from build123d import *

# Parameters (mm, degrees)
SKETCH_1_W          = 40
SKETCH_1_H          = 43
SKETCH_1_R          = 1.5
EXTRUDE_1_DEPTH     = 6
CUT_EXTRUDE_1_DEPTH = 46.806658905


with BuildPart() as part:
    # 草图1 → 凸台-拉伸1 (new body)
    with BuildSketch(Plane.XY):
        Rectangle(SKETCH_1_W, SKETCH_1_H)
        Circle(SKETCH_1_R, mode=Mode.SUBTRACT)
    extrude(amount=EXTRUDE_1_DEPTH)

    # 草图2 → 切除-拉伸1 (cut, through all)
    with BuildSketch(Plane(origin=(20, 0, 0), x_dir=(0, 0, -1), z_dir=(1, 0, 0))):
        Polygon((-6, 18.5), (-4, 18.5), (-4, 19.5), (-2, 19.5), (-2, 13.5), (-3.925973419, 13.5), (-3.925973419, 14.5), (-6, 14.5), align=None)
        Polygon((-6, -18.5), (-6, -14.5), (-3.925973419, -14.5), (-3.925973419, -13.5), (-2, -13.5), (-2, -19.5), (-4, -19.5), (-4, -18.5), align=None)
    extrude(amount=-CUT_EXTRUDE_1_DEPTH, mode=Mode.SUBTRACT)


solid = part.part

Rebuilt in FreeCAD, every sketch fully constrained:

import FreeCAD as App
import Part
import Sketcher

V = App.Vector
Q = App.Units.Quantity


def add_polygon(sketch, points):
    """Adds a closed chain of lines whose ends are joined by coincident constraints."""
    first, n = sketch.GeometryCount, len(points)
    for a, b in zip(points, points[1:] + points[:1]):
        sketch.addGeometry(Part.LineSegment(App.Vector(*a, 0), App.Vector(*b, 0)), False)
    for i in range(n):
        sketch.addConstraint(Sketcher.Constraint("Coincident", first + i, 2, first + (i + 1) % n, 1))

doc = App.newDocument("Part")
body = doc.addObject("PartDesign::Body", "Body")

# Sketch on XY plane
sketch1 = doc.addObject("Sketcher::SketchObject", "Sketch")
body.addObject(sketch1)
sketch1.AttachmentSupport = (doc.XY_Plane, [""])
sketch1.MapMode = "FlatFace"
add_polygon(sketch1, [(-20, 21.5), (-20, -21.5), (20, -21.5), (20, 21.5)])  # lines 0-3
sketch1.addGeometry(Part.Circle(V(0, 0, 0), V(0, 0, 1), 1.5), False)  # 4
sketch1.addConstraint(Sketcher.Constraint("Vertical", 0))
sketch1.addConstraint(Sketcher.Constraint("Horizontal", 1))
sketch1.addConstraint(Sketcher.Constraint("Vertical", 2))
sketch1.addConstraint(Sketcher.Constraint("Horizontal", 3))
sketch1.addConstraint(Sketcher.Constraint("Coincident", 4, 3, -1, 1))
sketch1.addConstraint(Sketcher.Constraint("Symmetric", 0, 2, 2, 2, -1, 1))
sketch1.addConstraint(Sketcher.Constraint("Diameter", 4, Q("3 mm")))
sketch1.addConstraint(Sketcher.Constraint("DistanceX", 1, 1, 1, 2, Q("40 mm")))
sketch1.addConstraint(Sketcher.Constraint("DistanceY", 0, 2, 0, 1, Q("43 mm")))
pad1 = doc.addObject("PartDesign::Pad", "Pad")
body.addObject(pad1)
pad1.Profile = sketch1
pad1.Length = 6

# Sketch on YZ plane
sketch2 = doc.addObject("Sketcher::SketchObject", "Sketch001")
body.addObject(sketch2)
sketch2.AttachmentSupport = (doc.YZ_Plane, [""])
sketch2.MapMode = "FlatFace"
sketch2.AttachmentOffset = App.Placement(V(0, 0, 20), App.Rotation())
add_polygon(sketch2, [(18.5, 4), (18.5, 6), (14.5, 6), (14.5, 3.9), (13.5, 3.9), (13.5, 2), (19.5, 2), (19.5, 4)])  # lines 0-7
add_polygon(sketch2, [(-14.5, 6), (-18.5, 6), (-18.5, 4), (-19.5, 4), (-19.5, 2), (-13.5, 2), (-13.5, 3.9), (-14.5, 3.9)])  # lines 8-15
sketch2.addConstraint(Sketcher.Constraint("Vertical", 0))
sketch2.addConstraint(Sketcher.Constraint("Horizontal", 1))
sketch2.addConstraint(Sketcher.Constraint("Vertical", 2))
sketch2.addConstraint(Sketcher.Constraint("Horizontal", 3))
sketch2.addConstraint(Sketcher.Constraint("Vertical", 4))
sketch2.addConstraint(Sketcher.Constraint("Horizontal", 5))
sketch2.addConstraint(Sketcher.Constraint("Vertical", 6))
sketch2.addConstraint(Sketcher.Constraint("Horizontal", 7))
sketch2.addConstraint(Sketcher.Constraint("Horizontal", 8))
sketch2.addConstraint(Sketcher.Constraint("Vertical", 9))
sketch2.addConstraint(Sketcher.Constraint("Horizontal", 10))
sketch2.addConstraint(Sketcher.Constraint("Vertical", 11))
sketch2.addConstraint(Sketcher.Constraint("Horizontal", 12))
sketch2.addConstraint(Sketcher.Constraint("Vertical", 13))
sketch2.addConstraint(Sketcher.Constraint("Horizontal", 14))
sketch2.addConstraint(Sketcher.Constraint("Vertical", 15))
sketch2.addConstraint(Sketcher.Constraint("Symmetric", 0, 2, 8, 2, -2))
sketch2.addConstraint(Sketcher.Constraint("Symmetric", 6, 2, 10, 2, -2))
sketch2.addConstraint(Sketcher.Constraint("Symmetric", 4, 2, 12, 2, -2))
sketch2.addConstraint(Sketcher.Constraint("Symmetric", 2, 2, 14, 2, -2))
sketch2.addConstraint(Sketcher.Constraint("Equal", 3, 7))
sketch2.addConstraint(Sketcher.Constraint("Equal", 0, 6))
sketch2.addConstraint(Sketcher.Constraint("DistanceX", 1, 2, 1, 1, Q("4 mm")))
sketch2.addConstraint(Sketcher.Constraint("DistanceX", 3, 2, 3, 1, Q("1 mm")))
sketch2.addConstraint(Sketcher.Constraint("DistanceY", 0, 1, 0, 2, Q("2 mm")))
sketch2.addConstraint(Sketcher.Constraint("DistanceY", -1, 1, 0, 2, Q("6 mm")))
sketch2.addConstraint(Sketcher.Constraint("DistanceX", 8, 2, 3, 2, Q("32 mm")))
sketch2.addConstraint(Sketcher.Constraint("DistanceY", 2, 2, 2, 1, Q("2.074027 mm")))
pocket1 = doc.addObject("PartDesign::Pocket", "Pocket")
body.addObject(pocket1)
pocket1.Profile = sketch2
pocket1.Type = "ThroughAll"

doc.recompute()
